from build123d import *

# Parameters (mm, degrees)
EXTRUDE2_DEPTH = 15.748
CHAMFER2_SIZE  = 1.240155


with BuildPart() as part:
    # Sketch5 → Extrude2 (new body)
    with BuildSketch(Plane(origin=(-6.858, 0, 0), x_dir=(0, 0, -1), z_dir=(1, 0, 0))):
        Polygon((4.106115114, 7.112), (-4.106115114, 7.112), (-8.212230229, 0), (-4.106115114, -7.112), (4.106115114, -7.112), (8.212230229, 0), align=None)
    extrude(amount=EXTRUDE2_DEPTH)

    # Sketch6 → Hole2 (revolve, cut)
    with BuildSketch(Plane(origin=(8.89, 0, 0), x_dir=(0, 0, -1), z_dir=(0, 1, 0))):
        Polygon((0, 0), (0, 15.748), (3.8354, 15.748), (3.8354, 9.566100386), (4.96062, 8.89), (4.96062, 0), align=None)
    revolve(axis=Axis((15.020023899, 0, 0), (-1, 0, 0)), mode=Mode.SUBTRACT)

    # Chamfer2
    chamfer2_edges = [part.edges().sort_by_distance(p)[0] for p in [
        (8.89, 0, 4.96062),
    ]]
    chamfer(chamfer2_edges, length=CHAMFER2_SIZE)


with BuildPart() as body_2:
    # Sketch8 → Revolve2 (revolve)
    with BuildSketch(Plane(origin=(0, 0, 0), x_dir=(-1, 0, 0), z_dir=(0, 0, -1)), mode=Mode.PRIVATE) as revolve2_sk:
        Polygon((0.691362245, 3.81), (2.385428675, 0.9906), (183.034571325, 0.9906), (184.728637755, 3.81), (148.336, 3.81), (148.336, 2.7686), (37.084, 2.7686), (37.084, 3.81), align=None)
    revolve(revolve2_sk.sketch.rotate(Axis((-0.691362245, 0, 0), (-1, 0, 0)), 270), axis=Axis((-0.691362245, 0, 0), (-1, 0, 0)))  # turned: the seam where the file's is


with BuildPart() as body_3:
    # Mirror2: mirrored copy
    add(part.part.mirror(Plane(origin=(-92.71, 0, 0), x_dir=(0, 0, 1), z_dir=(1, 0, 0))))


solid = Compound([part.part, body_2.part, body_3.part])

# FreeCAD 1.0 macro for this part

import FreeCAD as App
import Part
import Sketcher
Q = App.Units.Quantity


def edges_at(feature, points):
    """Names of the edges that pass closest to the given points."""
    edges = feature.Shape.Edges
    near = lambda p: min(range(len(edges)), key=lambda i: edges[i].distToShape(Part.Vertex(*p))[0])
    return sorted({f"Edge{near(p) + 1}" for p in points})


def add_polygon(sketch, points):
    """Adds a closed chain of lines whose ends are joined by coincident constraints."""
    first, n = sketch.GeometryCount, len(points)
    for a, b in zip(points, points[1:] + points[:1]):
        sketch.addGeometry(Part.LineSegment(App.Vector(*a, 0), App.Vector(*b, 0)), False)
    for i in range(n):
        sketch.addConstraint(Sketcher.Constraint("Coincident", first + i, 2, first + (i + 1) % n, 1))

doc = App.newDocument("Part")
body = doc.addObject("PartDesign::Body", "Body")

sketch1 = body.newObject("Sketcher::SketchObject", "Sketch")
sketch1.AttachmentSupport = (doc.getObject("YZ_Plane"), [""])
sketch1.MapMode = "FlatFace"
sketch1.AttachmentOffset = App.Placement(App.Vector(0, 0, -0.27 * 25.4), App.Rotation())
add_polygon(sketch1, [(7, -4), (7, 4), (0, 8), (-7, 4), (-7, -4), (0, -8)])
sketch1.addConstraint(Sketcher.Constraint("Vertical", 0))
sketch1.addConstraint(Sketcher.Constraint("Vertical", 3))
sketch1.addConstraint(Sketcher.Constraint("Symmetric", 0, 2, 3, 2, -1, 1))
sketch1.addConstraint(Sketcher.Constraint("Symmetric", 1, 2, 4, 2, -1, 1))
sketch1.addConstraint(Sketcher.Constraint("PointOnObject", 1, 2, -2))
sketch1.addConstraint(Sketcher.Constraint("Parallel", 2, 5))
sketch1.addConstraint(Sketcher.Constraint("Horizontal", 0, 2, 2, 2))
sketch1.addConstraint(Sketcher.Constraint("Angle", 1, Q("150 deg")))
sketch1.addConstraint(Sketcher.Constraint("DistanceX", -1, 1, 0, 2, Q("0.28 in")))
sketch1.addConstraint(Sketcher.Constraint("DistanceY", 0, 1, 0, 2, Q("8.21223 mm")))
pad1 = body.newObject("PartDesign::Pad", "Pad")
pad1.Profile = sketch1
pad1.Length = Q("0.62 in")

sketch2 = body.newObject("Sketcher::SketchObject", "Sketch001")
sketch2.AttachmentSupport = (doc.getObject("XZ_Plane"), [""])
sketch2.MapMode = "FlatFace"
add_polygon(sketch2, [(-6.9, 0), (8.9, 0), (8.9, -5), (0, -5), (-0.7, -3.8), (-6.9, -3.8)])
sketch2.addConstraint(Sketcher.Constraint("Horizontal", 0))
sketch2.addConstraint(Sketcher.Constraint("Vertical", 1))
sketch2.addConstraint(Sketcher.Constraint("Horizontal", 2))
sketch2.addConstraint(Sketcher.Constraint("Horizontal", 4))
sketch2.addConstraint(Sketcher.Constraint("Vertical", 5))
sketch2.addConstraint(Sketcher.Constraint("PointOnObject", 0, 2, -1))
sketch2.addConstraint(Sketcher.Constraint("PointOnObject", 2, 2, -2))
sketch2.addConstraint(Sketcher.Constraint("Angle", 3, Q("121 deg")))
sketch2.addConstraint(Sketcher.Constraint("DistanceX", 0, 1, 0, 2, Q("0.62 in")))
sketch2.addConstraint(Sketcher.Constraint("DistanceX", 2, 2, 2, 1, Q("0.35 in")))
sketch2.addConstraint(Sketcher.Constraint("DistanceY", 5, 1, 5, 2, Q("0.151 in")))
sketch2.addConstraint(Sketcher.Constraint("DistanceY", 1, 2, 1, 1, Q("0.1953 in")))
groove = body.newObject("PartDesign::Groove", "Groove")
groove.Profile = sketch2
groove.ReferenceAxis = (sketch2, ["H_Axis"])
groove.Angle = 360
doc.recompute()

chamfer = body.newObject("PartDesign::Chamfer", "Chamfer")
chamfer.Base = (groove, edges_at(groove, [(8.89, 0, 4.961)]))
chamfer.Size = 1.240155
body2 = doc.addObject("PartDesign::Body", "Body001")

sketch3 = body2.newObject("Sketcher::SketchObject", "Sketch002")
sketch3.AttachmentSupport = (doc.getObject("XY_Plane001"), [""])
sketch3.MapMode = "FlatFace"
add_polygon(sketch3, [(-0.7, 3.8), (-2.4, 1), (-183, 1), (-184.7, 3.8), (-148.3, 3.8), (-148.3, 2.8), (-37.1, 2.8), (-37.1, 3.8)])
sketch3.addConstraint(Sketcher.Constraint("Horizontal", 1))
sketch3.addConstraint(Sketcher.Constraint("Horizontal", 3))
sketch3.addConstraint(Sketcher.Constraint("Vertical", 4))
sketch3.addConstraint(Sketcher.Constraint("Horizontal", 5))
sketch3.addConstraint(Sketcher.Constraint("Vertical", 6))
sketch3.addConstraint(Sketcher.Constraint("Horizontal", 7))
sketch3.addConstraint(Sketcher.Constraint("Horizontal", 3, 2, 6, 2))
sketch3.addConstraint(Sketcher.Constraint("Equal", 3, 7))
sketch3.addConstraint(Sketcher.Constraint("Equal", 0, 2))
sketch3.addConstraint(Sketcher.Constraint("Angle", 0, Q("-121 deg")))
sketch3.addConstraint(Sketcher.Constraint("DistanceX", 5, 1, 5, 2, Q("4.38 in")))
sketch3.addConstraint(Sketcher.Constraint("DistanceY", 4, 2, 4, 1, Q("0.041 in")))
sketch3.addConstraint(Sketcher.Constraint("DistanceY", -1, 1, 2, 2, Q("0.15 in")))
sketch3.addConstraint(Sketcher.Constraint("DistanceX", 3, 2, -1, 1, Q("5.84 in")))
sketch3.addConstraint(Sketcher.Constraint("DistanceY", 1, 2, 4, 2, Q("0.07 in")))
sketch3.addConstraint(Sketcher.Constraint("DistanceX", 1, 2, 1, 1, Q("180.649143 mm")))
revolution = body2.newObject("PartDesign::Revolution", "Revolution")
revolution.Profile = sketch3
revolution.ReferenceAxis = (sketch3, ["H_Axis"])
revolution.Angle = 360
body3 = doc.addObject("PartDesign::Body", "Body002")
doc.recompute()

mirroring = doc.addObject("Part::Mirroring", "Mirroring")
mirroring.Source = body
mirroring.Base = App.Vector(-92.71, 0, 0)
mirroring.Normal = App.Vector(1, 0, 0)
body3.BaseFeature = mirroring
doc.recompute()
mirroring.Visibility = False

doc.recompute()
